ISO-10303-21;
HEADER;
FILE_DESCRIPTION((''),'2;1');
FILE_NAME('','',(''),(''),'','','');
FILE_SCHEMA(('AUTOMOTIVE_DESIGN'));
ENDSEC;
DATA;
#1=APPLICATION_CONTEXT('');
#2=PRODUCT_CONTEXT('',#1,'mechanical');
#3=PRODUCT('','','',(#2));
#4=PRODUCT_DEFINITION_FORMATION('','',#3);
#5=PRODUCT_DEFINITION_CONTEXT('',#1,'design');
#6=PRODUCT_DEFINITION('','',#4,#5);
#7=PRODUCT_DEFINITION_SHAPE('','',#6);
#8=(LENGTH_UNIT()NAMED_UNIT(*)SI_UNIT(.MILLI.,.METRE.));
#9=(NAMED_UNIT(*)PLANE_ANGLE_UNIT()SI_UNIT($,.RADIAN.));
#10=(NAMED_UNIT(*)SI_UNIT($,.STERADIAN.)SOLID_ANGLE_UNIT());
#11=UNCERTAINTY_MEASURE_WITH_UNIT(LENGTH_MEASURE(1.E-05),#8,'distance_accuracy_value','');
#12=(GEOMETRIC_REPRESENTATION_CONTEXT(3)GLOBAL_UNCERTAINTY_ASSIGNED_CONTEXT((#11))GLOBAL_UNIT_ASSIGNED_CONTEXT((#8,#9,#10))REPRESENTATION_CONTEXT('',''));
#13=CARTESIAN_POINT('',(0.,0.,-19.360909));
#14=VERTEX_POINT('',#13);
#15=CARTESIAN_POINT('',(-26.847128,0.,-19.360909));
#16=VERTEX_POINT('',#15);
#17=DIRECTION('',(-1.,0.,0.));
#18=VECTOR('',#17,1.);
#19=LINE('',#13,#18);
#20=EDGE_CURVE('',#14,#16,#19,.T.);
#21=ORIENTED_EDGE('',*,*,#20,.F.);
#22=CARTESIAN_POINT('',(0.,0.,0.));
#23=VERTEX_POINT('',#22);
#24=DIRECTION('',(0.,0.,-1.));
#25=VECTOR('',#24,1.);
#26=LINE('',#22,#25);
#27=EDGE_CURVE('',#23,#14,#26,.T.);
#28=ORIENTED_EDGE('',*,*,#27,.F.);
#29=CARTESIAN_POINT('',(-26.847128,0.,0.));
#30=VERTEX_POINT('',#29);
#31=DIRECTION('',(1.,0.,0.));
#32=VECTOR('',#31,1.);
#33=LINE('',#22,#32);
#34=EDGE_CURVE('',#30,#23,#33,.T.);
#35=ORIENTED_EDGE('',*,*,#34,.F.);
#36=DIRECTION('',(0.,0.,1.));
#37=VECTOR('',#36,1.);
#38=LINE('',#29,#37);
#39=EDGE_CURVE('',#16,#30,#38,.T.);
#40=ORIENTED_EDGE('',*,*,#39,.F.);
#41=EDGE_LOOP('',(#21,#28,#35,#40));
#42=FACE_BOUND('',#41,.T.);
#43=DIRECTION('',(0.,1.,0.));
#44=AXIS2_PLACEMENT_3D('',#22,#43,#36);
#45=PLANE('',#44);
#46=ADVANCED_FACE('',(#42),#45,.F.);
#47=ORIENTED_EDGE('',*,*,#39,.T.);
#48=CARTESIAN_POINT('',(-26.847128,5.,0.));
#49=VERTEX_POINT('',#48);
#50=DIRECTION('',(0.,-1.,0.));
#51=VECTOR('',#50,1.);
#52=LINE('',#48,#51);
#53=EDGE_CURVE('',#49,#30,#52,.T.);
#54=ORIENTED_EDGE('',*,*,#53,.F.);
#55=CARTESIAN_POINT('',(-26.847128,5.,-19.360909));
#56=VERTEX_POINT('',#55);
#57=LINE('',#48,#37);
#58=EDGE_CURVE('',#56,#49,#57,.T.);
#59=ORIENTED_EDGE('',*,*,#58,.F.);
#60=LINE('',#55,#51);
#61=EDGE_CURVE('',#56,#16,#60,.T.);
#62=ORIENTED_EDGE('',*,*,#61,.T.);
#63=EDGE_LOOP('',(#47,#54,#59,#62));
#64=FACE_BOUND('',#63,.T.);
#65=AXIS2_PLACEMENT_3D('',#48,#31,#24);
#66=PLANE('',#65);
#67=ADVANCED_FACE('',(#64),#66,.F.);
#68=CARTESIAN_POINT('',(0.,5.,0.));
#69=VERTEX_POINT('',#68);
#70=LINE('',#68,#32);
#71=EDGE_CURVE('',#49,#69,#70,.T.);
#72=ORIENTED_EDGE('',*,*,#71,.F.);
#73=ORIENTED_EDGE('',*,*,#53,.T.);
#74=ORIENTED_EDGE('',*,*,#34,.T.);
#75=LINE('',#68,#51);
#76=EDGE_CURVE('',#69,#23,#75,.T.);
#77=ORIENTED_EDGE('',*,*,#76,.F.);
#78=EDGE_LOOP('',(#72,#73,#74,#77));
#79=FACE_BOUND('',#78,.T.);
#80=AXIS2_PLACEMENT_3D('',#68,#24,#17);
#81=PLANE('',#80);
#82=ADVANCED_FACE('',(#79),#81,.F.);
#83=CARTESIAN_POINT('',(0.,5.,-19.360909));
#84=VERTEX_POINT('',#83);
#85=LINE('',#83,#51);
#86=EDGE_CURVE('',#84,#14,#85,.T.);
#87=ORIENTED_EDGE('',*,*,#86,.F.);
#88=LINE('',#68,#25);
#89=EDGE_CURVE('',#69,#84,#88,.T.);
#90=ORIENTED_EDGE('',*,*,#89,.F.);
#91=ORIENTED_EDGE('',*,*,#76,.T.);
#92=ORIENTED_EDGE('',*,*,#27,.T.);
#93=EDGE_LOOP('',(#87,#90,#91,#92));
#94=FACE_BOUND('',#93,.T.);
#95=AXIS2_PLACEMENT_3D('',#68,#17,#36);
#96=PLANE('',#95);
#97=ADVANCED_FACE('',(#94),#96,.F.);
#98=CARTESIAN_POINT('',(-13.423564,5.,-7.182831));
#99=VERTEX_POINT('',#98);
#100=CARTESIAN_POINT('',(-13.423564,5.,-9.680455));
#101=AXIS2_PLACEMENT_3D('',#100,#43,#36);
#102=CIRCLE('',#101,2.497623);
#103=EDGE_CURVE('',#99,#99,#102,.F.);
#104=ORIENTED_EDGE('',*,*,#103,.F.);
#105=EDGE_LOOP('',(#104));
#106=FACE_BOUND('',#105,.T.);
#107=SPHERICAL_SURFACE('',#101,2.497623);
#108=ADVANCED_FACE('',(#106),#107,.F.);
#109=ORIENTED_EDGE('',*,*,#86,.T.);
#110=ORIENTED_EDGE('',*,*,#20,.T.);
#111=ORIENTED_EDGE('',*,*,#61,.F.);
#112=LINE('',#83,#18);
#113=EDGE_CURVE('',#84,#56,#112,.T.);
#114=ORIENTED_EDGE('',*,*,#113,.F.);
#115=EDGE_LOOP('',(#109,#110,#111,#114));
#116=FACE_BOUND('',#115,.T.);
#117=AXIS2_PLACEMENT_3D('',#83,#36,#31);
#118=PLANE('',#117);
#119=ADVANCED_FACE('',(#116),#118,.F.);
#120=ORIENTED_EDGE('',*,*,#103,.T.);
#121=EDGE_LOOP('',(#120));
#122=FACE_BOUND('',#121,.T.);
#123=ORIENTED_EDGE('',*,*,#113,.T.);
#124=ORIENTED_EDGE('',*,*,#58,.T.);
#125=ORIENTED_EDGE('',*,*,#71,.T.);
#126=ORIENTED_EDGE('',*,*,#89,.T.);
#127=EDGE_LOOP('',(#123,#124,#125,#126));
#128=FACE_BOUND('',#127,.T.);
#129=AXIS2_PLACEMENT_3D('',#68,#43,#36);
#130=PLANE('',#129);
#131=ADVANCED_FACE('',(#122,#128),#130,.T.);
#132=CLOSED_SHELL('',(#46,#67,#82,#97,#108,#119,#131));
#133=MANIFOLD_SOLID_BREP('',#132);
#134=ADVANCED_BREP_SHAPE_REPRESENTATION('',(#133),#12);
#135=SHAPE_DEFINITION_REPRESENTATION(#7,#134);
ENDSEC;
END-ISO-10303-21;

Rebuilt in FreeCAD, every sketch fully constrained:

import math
import FreeCAD as App
import Part
import Sketcher

V = App.Vector
Q = App.Units.Quantity

doc = App.newDocument("Part")
params = doc.addObject("Spreadsheet::Sheet", "Params")
for row, (alias, value) in enumerate([
    ("pad1_length", "5 mm"),
    ("groove_angle", "360 deg"),
], start=1):
    params.set(f"A{row}", alias)
    params.set(f"B{row}", "=" + value)
    params.setAlias(f"B{row}", alias)

body = doc.addObject("PartDesign::Body", "Body")

# Sketch on XZ plane
sketch1 = body.newObject("Sketcher::SketchObject", "Sketch")
sketch1.AttachmentSupport = (doc.getObject("XZ_Plane"), [""])
sketch1.MapMode = "FlatFace"
sketch1.addGeometry([
    Part.LineSegment(V(-27, -19, 0), V(-27, 0, 0)),
    Part.LineSegment(V(-27, 0, 0), V(0, 0, 0)),
    Part.LineSegment(V(0, 0, 0), V(0, -19, 0)),
    Part.LineSegment(V(0, -19, 0), V(-27, -19, 0)),
], False)
sketch1.addConstraint([
    Sketcher.Constraint("Coincident", 0, 2, 1, 1),
    Sketcher.Constraint("Coincident", 1, 2, 2, 1),
    Sketcher.Constraint("Coincident", 2, 2, 3, 1),
    Sketcher.Constraint("Coincident", 3, 2, 0, 1),
    Sketcher.Constraint("Vertical", 0),
    Sketcher.Constraint("Horizontal", 1),
    Sketcher.Constraint("Vertical", 2),
    Sketcher.Constraint("Horizontal", 3),
    Sketcher.Constraint("Coincident", 1, 2, -1, 1),
    Sketcher.Constraint("DistanceY", 0, 1, 0, 2, Q("19.360909 mm")),
    Sketcher.Constraint("DistanceX", 1, 1, 1, 2, Q("26.847128 mm")),
])
pad1 = body.newObject("PartDesign::Pad", "Pad")
pad1.Profile = sketch1
pad1.setExpression("Length", "Params.pad1_length")
pad1.Reversed = True

# Sketch on XZ plane
sketch2 = body.newObject("Sketcher::SketchObject", "Sketch001")
sketch2.AttachmentSupport = (doc.getObject("XZ_Plane"), [""])
sketch2.MapMode = "FlatFace"
sketch2.AttachmentOffset = App.Placement(V(0, 0, -5), App.Rotation())
sketch2.addGeometry([
    Part.LineSegment(V(-13.4, -12.2, 0), V(-13.4, -7.2, 0)),
    Part.ArcOfCircle(Part.Circle(V(-13.4, -9.7, 0), V(0, 0, 1), 2.5), math.radians(-90), math.radians(90)),
], False)
sketch2.addGeometry(Part.LineSegment(V(-13.4, -12.2, 0), V(-13.4, -7.2, 0)), True)  # axis
sketch2.addConstraint([
    Sketcher.Constraint("Coincident", 0, 1, 1, 1),
    Sketcher.Constraint("Coincident", 1, 2, 0, 2),
    Sketcher.Constraint("Vertical", 0),
    Sketcher.Constraint("Vertical", 2),
    Sketcher.Constraint("Coincident", 2, 1, 0, 1),
    Sketcher.Constraint("Vertical", 1, 3, 0, 1),
    Sketcher.Constraint("Equal", 0, 2),
    Sketcher.Constraint("Radius", 1, Q("2.497623 mm")),
    Sketcher.Constraint("DistanceY", 0, 1, -1, 1, Q("12.178078 mm")),
    Sketcher.Constraint("DistanceX", 1, 3, -1, 1, Q("13.423564 mm")),
])
groove = body.newObject("PartDesign::Groove", "Groove")
groove.Profile = sketch2
groove.ReferenceAxis = (sketch2, ["Axis0"])
groove.setExpression("Angle", "Params.groove_angle")

doc.recompute()
